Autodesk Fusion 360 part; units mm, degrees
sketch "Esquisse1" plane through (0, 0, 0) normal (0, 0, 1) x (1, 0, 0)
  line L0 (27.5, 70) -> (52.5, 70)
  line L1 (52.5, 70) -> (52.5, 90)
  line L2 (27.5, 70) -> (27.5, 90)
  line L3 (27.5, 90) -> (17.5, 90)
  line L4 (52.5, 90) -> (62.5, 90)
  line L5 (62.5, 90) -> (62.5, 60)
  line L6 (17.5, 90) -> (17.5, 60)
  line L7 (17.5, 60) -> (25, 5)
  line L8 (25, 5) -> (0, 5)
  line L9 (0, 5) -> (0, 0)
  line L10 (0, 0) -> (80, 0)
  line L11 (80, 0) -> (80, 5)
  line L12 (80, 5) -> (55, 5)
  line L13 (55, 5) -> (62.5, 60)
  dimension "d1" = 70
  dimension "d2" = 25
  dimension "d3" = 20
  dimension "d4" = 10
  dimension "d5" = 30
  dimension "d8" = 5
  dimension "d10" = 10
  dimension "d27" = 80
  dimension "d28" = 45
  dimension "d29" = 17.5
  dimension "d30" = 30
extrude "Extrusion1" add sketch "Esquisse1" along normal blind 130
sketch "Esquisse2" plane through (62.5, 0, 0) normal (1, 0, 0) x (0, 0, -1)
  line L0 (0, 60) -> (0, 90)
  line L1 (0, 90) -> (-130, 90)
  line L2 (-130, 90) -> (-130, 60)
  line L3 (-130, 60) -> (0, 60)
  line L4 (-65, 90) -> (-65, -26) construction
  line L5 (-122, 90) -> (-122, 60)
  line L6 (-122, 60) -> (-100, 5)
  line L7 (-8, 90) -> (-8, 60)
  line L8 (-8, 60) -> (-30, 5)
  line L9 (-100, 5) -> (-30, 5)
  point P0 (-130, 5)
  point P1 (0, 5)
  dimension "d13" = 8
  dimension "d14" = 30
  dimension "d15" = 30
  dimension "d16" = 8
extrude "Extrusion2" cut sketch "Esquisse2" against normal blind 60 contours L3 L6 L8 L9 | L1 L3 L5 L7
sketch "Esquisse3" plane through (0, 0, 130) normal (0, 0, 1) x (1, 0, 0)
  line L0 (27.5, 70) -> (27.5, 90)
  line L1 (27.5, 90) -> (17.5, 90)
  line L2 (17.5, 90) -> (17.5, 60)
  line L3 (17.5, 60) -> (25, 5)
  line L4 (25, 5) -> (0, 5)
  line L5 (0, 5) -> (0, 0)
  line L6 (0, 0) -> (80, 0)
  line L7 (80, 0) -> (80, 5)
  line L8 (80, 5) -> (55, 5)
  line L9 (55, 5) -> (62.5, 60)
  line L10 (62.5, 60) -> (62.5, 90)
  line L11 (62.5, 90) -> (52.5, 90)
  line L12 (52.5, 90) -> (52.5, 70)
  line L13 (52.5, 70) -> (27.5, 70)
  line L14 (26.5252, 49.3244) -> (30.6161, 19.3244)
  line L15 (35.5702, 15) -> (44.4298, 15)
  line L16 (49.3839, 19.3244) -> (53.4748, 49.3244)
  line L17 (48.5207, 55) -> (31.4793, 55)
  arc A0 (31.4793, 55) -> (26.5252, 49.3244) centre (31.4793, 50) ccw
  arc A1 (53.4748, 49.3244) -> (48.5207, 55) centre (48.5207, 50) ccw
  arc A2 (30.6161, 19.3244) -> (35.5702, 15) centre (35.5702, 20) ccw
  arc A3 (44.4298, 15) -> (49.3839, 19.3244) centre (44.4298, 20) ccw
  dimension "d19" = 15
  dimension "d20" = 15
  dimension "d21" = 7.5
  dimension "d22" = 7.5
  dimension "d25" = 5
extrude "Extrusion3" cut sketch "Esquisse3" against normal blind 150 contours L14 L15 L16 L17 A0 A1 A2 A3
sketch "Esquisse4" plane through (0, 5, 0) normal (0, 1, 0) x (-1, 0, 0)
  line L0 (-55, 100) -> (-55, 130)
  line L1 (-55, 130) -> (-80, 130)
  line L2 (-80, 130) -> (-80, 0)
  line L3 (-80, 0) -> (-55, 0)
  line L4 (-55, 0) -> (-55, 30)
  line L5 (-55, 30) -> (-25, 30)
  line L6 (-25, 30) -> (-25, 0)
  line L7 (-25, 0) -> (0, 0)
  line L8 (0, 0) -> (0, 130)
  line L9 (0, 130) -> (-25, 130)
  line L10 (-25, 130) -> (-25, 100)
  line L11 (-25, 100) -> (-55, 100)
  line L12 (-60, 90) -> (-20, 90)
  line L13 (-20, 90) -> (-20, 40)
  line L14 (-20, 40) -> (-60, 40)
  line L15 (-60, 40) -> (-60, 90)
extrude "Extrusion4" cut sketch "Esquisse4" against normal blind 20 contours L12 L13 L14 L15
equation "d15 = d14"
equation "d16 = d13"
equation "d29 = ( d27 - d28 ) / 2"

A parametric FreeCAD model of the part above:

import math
import FreeCAD as App
import Part
import Sketcher


def add_polygon(sketch, points):
    """Adds a closed chain of lines whose ends are joined by coincident constraints."""
    first, n = sketch.GeometryCount, len(points)
    for a, b in zip(points, points[1:] + points[:1]):
        sketch.addGeometry(Part.LineSegment(App.Vector(*a, 0), App.Vector(*b, 0)), False)
    for i in range(n):
        sketch.addConstraint(Sketcher.Constraint("Coincident", first + i, 2, first + (i + 1) % n, 1))

doc = App.newDocument("Part")
body = doc.addObject("PartDesign::Body", "Body")

sketch1 = body.newObject("Sketcher::SketchObject", "Sketch")
sketch1.AttachmentSupport = (doc.getObject("XY_Plane"), [""])
sketch1.MapMode = "FlatFace"
add_polygon(sketch1, [(52, 70), (28, 70), (28, 90), (18, 90), (18, 60), (25, 5), (0, 5), (0, 0), (80, 0), (80, 5), (55, 5), (62, 60), (62, 90), (52, 90)])
sketch1.addConstraint(Sketcher.Constraint("Horizontal", 0))
sketch1.addConstraint(Sketcher.Constraint("Vertical", 1))
sketch1.addConstraint(Sketcher.Constraint("Horizontal", 2))
sketch1.addConstraint(Sketcher.Constraint("Vertical", 3))
sketch1.addConstraint(Sketcher.Constraint("Horizontal", 5))
sketch1.addConstraint(Sketcher.Constraint("Vertical", 6))
sketch1.addConstraint(Sketcher.Constraint("Horizontal", 7))
sketch1.addConstraint(Sketcher.Constraint("Vertical", 8))
sketch1.addConstraint(Sketcher.Constraint("Horizontal", 9))
sketch1.addConstraint(Sketcher.Constraint("Vertical", 11))
sketch1.addConstraint(Sketcher.Constraint("Horizontal", 12))
sketch1.addConstraint(Sketcher.Constraint("Vertical", 13))
sketch1.addConstraint(Sketcher.Constraint("Coincident", 6, 2, -1, 1))
sketch1.addConstraint(Sketcher.Constraint("Horizontal", 5, 2, 8, 2))
sketch1.addConstraint(Sketcher.Constraint("Horizontal", 3, 2, 10, 2))
sketch1.addConstraint(Sketcher.Constraint("Horizontal", 2, 2, 11, 2))
sketch1.addConstraint(Sketcher.Constraint("Equal", 0, 5))
sketch1.addConstraint(Sketcher.Constraint("Equal", 5, 9))
sketch1.addConstraint(Sketcher.Constraint("Equal", 2, 12))
sketch1.addConstraint(Sketcher.Constraint("Equal", 4, 10))
sketch1.addConstraint(Sketcher.Constraint("DistanceX", 0, 2, 0, 1, 25.0))
sketch1.addConstraint(Sketcher.Constraint("DistanceX", 2, 2, 2, 1, 10.0))
sketch1.addConstraint(Sketcher.Constraint("DistanceX", 7, 1, 7, 2, 80.0))
sketch1.addConstraint(Sketcher.Constraint("DistanceY", 1, 1, 1, 2, 20.0))
sketch1.addConstraint(Sketcher.Constraint("DistanceY", 3, 2, 3, 1, 30.0))
sketch1.addConstraint(Sketcher.Constraint("DistanceY", 6, 2, 6, 1, 5.0))
sketch1.addConstraint(Sketcher.Constraint("DistanceY", -1, 1, 0, 2, 70.0))
pad1 = body.newObject("PartDesign::Pad", "Pad")
pad1.Profile = sketch1
pad1.Length = 130

sketch2 = body.newObject("Sketcher::SketchObject", "Sketch001")
sketch2.AttachmentSupport = (doc.getObject("YZ_Plane"), [""])
sketch2.MapMode = "FlatFace"
sketch2.AttachmentOffset = App.Placement(App.Vector(0, 0, 62.5), App.Rotation())
add_polygon(sketch2, [(5, 30), (60, 8), (90, 8), (90, 122), (60, 122), (5, 100)])
sketch2.addConstraint(Sketcher.Constraint("Horizontal", 1))
sketch2.addConstraint(Sketcher.Constraint("Vertical", 2))
sketch2.addConstraint(Sketcher.Constraint("Horizontal", 3))
sketch2.addConstraint(Sketcher.Constraint("Vertical", 5))
sketch2.addConstraint(Sketcher.Constraint("Vertical", 0, 2, 3, 2))
sketch2.addConstraint(Sketcher.Constraint("Equal", 0, 4))
sketch2.addConstraint(Sketcher.Constraint("DistanceX", 1, 1, 1, 2, 30.0))
sketch2.addConstraint(Sketcher.Constraint("DistanceY", -1, 1, 0, 2, 8.0))
sketch2.addConstraint(Sketcher.Constraint("DistanceY", -1, 1, 5, 2, 30.0))
sketch2.addConstraint(Sketcher.Constraint("DistanceY", 2, 1, 2, 2, 114.0))
sketch2.addConstraint(Sketcher.Constraint("DistanceX", -1, 1, 0, 2, 60.0))
sketch2.addConstraint(Sketcher.Constraint("DistanceX", -1, 1, 4, 2, 5.0))
pocket1 = body.newObject("PartDesign::Pocket", "Pocket")
pocket1.Profile = sketch2
pocket1.Length = 60

sketch3 = body.newObject("Sketcher::SketchObject", "Sketch002")
sketch3.AttachmentSupport = (doc.getObject("XY_Plane"), [""])
sketch3.MapMode = "FlatFace"
sketch3.AttachmentOffset = App.Placement(App.Vector(0, 0, 130), App.Rotation())
sketch3.addGeometry(Part.ArcOfCircle(Part.Circle(App.Vector(31.5, 50, 0), App.Vector(0, 0, 1), 5), math.radians(90), math.radians(188)), False)
sketch3.addGeometry(Part.LineSegment(App.Vector(26.5, 49.3, 0), App.Vector(30.6, 19.3, 0)), False)
sketch3.addGeometry(Part.ArcOfCircle(Part.Circle(App.Vector(35.6, 20, 0), App.Vector(0, 0, 1), 5), math.radians(-172), math.radians(-90)), False)
sketch3.addGeometry(Part.LineSegment(App.Vector(35.6, 15, 0), App.Vector(44.4, 15, 0)), False)
sketch3.addGeometry(Part.ArcOfCircle(Part.Circle(App.Vector(44.4, 20, 0), App.Vector(0, 0, 1), 5), math.radians(-90), math.radians(-8)), False)
sketch3.addGeometry(Part.LineSegment(App.Vector(49.4, 19.3, 0), App.Vector(53.5, 49.3, 0)), False)
sketch3.addGeometry(Part.ArcOfCircle(Part.Circle(App.Vector(48.5, 50, 0), App.Vector(0, 0, 1), 5), math.radians(-8), math.radians(90)), False)
sketch3.addGeometry(Part.LineSegment(App.Vector(48.5, 55, 0), App.Vector(31.5, 55, 0)), False)
sketch3.addConstraint(Sketcher.Constraint("Tangent", 0, 2, 1, 1))
sketch3.addConstraint(Sketcher.Constraint("Tangent", 1, 2, 2, 1))
sketch3.addConstraint(Sketcher.Constraint("Tangent", 2, 2, 3, 1))
sketch3.addConstraint(Sketcher.Constraint("Tangent", 3, 2, 4, 1))
sketch3.addConstraint(Sketcher.Constraint("Tangent", 4, 2, 5, 1))
sketch3.addConstraint(Sketcher.Constraint("Tangent", 5, 2, 6, 1))
sketch3.addConstraint(Sketcher.Constraint("Tangent", 6, 2, 7, 1))
sketch3.addConstraint(Sketcher.Constraint("Tangent", 7, 2, 0, 1))
sketch3.addConstraint(Sketcher.Constraint("Horizontal", 3))
sketch3.addConstraint(Sketcher.Constraint("Horizontal", 7))
sketch3.addConstraint(Sketcher.Constraint("Equal", 0, 2))
sketch3.addConstraint(Sketcher.Constraint("Equal", 2, 4))
sketch3.addConstraint(Sketcher.Constraint("Equal", 4, 6))
sketch3.addConstraint(Sketcher.Constraint("Horizontal", 1, 2, 4, 2))
sketch3.addConstraint(Sketcher.Constraint("Radius", 0, 5.0))
sketch3.addConstraint(Sketcher.Constraint("DistanceY", -1, 1, 2, 2, 15.0))
sketch3.addConstraint(Sketcher.Constraint("DistanceY", -1, 1, 0, 3, 50.0))
sketch3.addConstraint(Sketcher.Constraint("DistanceX", 3, 1, 3, 2, 8.8596))
sketch3.addConstraint(Sketcher.Constraint("DistanceX", 7, 2, 7, 1, 17.0414))
sketch3.addConstraint(Sketcher.Constraint("DistanceX", -1, 1, 1, 2, 30.616))
pocket2 = body.newObject("PartDesign::Pocket", "Pocket001")
pocket2.Profile = sketch3
pocket2.Length = 150

sketch4 = body.newObject("Sketcher::SketchObject", "Sketch003")
sketch4.AttachmentSupport = (doc.getObject("XZ_Plane"), [""])
sketch4.MapMode = "FlatFace"
sketch4.AttachmentOffset = App.Placement(App.Vector(0, 0, -5), App.Rotation())
add_polygon(sketch4, [(20, 90), (60, 90), (60, 40), (20, 40)])
sketch4.addConstraint(Sketcher.Constraint("Horizontal", 0))
sketch4.addConstraint(Sketcher.Constraint("Vertical", 1))
sketch4.addConstraint(Sketcher.Constraint("Horizontal", 2))
sketch4.addConstraint(Sketcher.Constraint("Vertical", 3))
sketch4.addConstraint(Sketcher.Constraint("DistanceX", 0, 1, 0, 2, 40.0))
sketch4.addConstraint(Sketcher.Constraint("DistanceY", 1, 2, 1, 1, 50.0))
sketch4.addConstraint(Sketcher.Constraint("DistanceX", -1, 1, 0, 2, 60.0))
sketch4.addConstraint(Sketcher.Constraint("DistanceY", -1, 1, 0, 2, 90.0))
pocket3 = body.newObject("PartDesign::Pocket", "Pocket002")
pocket3.Profile = sketch4
pocket3.Length = 20
pocket3.Reversed = True

doc.recompute()
